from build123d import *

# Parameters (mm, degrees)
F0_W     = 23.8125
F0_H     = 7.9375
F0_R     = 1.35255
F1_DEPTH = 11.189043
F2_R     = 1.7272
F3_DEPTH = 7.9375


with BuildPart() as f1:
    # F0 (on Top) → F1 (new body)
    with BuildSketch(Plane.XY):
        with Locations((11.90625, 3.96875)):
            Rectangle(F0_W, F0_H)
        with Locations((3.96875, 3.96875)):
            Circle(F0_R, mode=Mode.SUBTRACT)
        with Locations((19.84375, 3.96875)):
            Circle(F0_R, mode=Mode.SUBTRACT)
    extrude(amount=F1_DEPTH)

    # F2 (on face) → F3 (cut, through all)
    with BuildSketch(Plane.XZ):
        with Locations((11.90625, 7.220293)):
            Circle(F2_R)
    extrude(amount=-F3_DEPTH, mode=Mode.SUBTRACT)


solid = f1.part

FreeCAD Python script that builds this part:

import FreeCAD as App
import Part
import Sketcher
from FreeCAD import Vector
Q = App.Units.Quantity


def add_polygon(sketch, points):
    """Adds a closed chain of lines whose ends are joined by coincident constraints."""
    first, n = sketch.GeometryCount, len(points)
    for a, b in zip(points, points[1:] + points[:1]):
        sketch.addGeometry(Part.LineSegment(App.Vector(*a, 0), App.Vector(*b, 0)), False)
    for i in range(n):
        sketch.addConstraint(Sketcher.Constraint("Coincident", first + i, 2, first + (i + 1) % n, 1))

doc = App.newDocument("Part")
body = doc.addObject("PartDesign::Body", "Body")

# Sketch on XY plane
sketch1 = body.newObject("Sketcher::SketchObject", "Sketch")
sketch1.AttachmentSupport = (doc.getObject("XY_Plane"), [""])
sketch1.MapMode = "FlatFace"
add_polygon(sketch1, [(0, 7.9375), (0, 0), (23.8125, 0), (23.8125, 7.9375)])  # lines 0-3
sketch1.addGeometry(Part.Circle(Vector(3.96875, 3.96875, 0), Vector(0, 0, 1), 1.35255), False)  # 4
sketch1.addGeometry(Part.Circle(Vector(19.84375, 3.96875, 0), Vector(0, 0, 1), 1.35255), False)  # 5
sketch1.addConstraint(Sketcher.Constraint("Vertical", 0))
sketch1.addConstraint(Sketcher.Constraint("Horizontal", 1))
sketch1.addConstraint(Sketcher.Constraint("Vertical", 2))
sketch1.addConstraint(Sketcher.Constraint("Horizontal", 3))
sketch1.addConstraint(Sketcher.Constraint("Coincident", 0, 2, -1, 1))
sketch1.addConstraint(Sketcher.Constraint("Equal", 4, 5))
sketch1.addConstraint(Sketcher.Constraint("Horizontal", 4, 3, 5, 3))
sketch1.addConstraint(Sketcher.Constraint("Diameter", 4, Q("0.1065 in")))
sketch1.addConstraint(Sketcher.Constraint("DistanceX", 1, 1, 1, 2, Q("0.9375 in")))
sketch1.addConstraint(Sketcher.Constraint("DistanceY", 0, 2, 0, 1, Q("0.3125 in")))
sketch1.addConstraint(Sketcher.Constraint("DistanceX", -1, 1, 4, 3, Q("0.15625 in")))
sketch1.addConstraint(Sketcher.Constraint("DistanceY", -1, 1, 4, 3, Q("0.15625 in")))
sketch1.addConstraint(Sketcher.Constraint("DistanceX", -1, 1, 5, 3, Q("0.78125 in")))
pad1 = body.newObject("PartDesign::Pad", "Pad")
pad1.Profile = sketch1
pad1.Length = 11.189043

# Sketch on XZ plane
sketch2 = body.newObject("Sketcher::SketchObject", "Sketch001")
sketch2.AttachmentSupport = (doc.getObject("XZ_Plane"), [""])
sketch2.MapMode = "FlatFace"
sketch2.addGeometry(Part.Circle(Vector(11.90625, 7.220293, 0), Vector(0, 0, 1), 1.7272), False)
sketch2.addConstraint(Sketcher.Constraint("Diameter", 0, Q("0.136 in")))
sketch2.addConstraint(Sketcher.Constraint("DistanceX", -1, 1, 0, 3, Q("0.46875 in")))
sketch2.addConstraint(Sketcher.Constraint("DistanceY", -1, 1, 0, 3, Q("7.220293 mm")))
pocket1 = body.newObject("PartDesign::Pocket", "Pocket")
pocket1.Profile = sketch2
pocket1.Type = "ThroughAll"

doc.recompute()
